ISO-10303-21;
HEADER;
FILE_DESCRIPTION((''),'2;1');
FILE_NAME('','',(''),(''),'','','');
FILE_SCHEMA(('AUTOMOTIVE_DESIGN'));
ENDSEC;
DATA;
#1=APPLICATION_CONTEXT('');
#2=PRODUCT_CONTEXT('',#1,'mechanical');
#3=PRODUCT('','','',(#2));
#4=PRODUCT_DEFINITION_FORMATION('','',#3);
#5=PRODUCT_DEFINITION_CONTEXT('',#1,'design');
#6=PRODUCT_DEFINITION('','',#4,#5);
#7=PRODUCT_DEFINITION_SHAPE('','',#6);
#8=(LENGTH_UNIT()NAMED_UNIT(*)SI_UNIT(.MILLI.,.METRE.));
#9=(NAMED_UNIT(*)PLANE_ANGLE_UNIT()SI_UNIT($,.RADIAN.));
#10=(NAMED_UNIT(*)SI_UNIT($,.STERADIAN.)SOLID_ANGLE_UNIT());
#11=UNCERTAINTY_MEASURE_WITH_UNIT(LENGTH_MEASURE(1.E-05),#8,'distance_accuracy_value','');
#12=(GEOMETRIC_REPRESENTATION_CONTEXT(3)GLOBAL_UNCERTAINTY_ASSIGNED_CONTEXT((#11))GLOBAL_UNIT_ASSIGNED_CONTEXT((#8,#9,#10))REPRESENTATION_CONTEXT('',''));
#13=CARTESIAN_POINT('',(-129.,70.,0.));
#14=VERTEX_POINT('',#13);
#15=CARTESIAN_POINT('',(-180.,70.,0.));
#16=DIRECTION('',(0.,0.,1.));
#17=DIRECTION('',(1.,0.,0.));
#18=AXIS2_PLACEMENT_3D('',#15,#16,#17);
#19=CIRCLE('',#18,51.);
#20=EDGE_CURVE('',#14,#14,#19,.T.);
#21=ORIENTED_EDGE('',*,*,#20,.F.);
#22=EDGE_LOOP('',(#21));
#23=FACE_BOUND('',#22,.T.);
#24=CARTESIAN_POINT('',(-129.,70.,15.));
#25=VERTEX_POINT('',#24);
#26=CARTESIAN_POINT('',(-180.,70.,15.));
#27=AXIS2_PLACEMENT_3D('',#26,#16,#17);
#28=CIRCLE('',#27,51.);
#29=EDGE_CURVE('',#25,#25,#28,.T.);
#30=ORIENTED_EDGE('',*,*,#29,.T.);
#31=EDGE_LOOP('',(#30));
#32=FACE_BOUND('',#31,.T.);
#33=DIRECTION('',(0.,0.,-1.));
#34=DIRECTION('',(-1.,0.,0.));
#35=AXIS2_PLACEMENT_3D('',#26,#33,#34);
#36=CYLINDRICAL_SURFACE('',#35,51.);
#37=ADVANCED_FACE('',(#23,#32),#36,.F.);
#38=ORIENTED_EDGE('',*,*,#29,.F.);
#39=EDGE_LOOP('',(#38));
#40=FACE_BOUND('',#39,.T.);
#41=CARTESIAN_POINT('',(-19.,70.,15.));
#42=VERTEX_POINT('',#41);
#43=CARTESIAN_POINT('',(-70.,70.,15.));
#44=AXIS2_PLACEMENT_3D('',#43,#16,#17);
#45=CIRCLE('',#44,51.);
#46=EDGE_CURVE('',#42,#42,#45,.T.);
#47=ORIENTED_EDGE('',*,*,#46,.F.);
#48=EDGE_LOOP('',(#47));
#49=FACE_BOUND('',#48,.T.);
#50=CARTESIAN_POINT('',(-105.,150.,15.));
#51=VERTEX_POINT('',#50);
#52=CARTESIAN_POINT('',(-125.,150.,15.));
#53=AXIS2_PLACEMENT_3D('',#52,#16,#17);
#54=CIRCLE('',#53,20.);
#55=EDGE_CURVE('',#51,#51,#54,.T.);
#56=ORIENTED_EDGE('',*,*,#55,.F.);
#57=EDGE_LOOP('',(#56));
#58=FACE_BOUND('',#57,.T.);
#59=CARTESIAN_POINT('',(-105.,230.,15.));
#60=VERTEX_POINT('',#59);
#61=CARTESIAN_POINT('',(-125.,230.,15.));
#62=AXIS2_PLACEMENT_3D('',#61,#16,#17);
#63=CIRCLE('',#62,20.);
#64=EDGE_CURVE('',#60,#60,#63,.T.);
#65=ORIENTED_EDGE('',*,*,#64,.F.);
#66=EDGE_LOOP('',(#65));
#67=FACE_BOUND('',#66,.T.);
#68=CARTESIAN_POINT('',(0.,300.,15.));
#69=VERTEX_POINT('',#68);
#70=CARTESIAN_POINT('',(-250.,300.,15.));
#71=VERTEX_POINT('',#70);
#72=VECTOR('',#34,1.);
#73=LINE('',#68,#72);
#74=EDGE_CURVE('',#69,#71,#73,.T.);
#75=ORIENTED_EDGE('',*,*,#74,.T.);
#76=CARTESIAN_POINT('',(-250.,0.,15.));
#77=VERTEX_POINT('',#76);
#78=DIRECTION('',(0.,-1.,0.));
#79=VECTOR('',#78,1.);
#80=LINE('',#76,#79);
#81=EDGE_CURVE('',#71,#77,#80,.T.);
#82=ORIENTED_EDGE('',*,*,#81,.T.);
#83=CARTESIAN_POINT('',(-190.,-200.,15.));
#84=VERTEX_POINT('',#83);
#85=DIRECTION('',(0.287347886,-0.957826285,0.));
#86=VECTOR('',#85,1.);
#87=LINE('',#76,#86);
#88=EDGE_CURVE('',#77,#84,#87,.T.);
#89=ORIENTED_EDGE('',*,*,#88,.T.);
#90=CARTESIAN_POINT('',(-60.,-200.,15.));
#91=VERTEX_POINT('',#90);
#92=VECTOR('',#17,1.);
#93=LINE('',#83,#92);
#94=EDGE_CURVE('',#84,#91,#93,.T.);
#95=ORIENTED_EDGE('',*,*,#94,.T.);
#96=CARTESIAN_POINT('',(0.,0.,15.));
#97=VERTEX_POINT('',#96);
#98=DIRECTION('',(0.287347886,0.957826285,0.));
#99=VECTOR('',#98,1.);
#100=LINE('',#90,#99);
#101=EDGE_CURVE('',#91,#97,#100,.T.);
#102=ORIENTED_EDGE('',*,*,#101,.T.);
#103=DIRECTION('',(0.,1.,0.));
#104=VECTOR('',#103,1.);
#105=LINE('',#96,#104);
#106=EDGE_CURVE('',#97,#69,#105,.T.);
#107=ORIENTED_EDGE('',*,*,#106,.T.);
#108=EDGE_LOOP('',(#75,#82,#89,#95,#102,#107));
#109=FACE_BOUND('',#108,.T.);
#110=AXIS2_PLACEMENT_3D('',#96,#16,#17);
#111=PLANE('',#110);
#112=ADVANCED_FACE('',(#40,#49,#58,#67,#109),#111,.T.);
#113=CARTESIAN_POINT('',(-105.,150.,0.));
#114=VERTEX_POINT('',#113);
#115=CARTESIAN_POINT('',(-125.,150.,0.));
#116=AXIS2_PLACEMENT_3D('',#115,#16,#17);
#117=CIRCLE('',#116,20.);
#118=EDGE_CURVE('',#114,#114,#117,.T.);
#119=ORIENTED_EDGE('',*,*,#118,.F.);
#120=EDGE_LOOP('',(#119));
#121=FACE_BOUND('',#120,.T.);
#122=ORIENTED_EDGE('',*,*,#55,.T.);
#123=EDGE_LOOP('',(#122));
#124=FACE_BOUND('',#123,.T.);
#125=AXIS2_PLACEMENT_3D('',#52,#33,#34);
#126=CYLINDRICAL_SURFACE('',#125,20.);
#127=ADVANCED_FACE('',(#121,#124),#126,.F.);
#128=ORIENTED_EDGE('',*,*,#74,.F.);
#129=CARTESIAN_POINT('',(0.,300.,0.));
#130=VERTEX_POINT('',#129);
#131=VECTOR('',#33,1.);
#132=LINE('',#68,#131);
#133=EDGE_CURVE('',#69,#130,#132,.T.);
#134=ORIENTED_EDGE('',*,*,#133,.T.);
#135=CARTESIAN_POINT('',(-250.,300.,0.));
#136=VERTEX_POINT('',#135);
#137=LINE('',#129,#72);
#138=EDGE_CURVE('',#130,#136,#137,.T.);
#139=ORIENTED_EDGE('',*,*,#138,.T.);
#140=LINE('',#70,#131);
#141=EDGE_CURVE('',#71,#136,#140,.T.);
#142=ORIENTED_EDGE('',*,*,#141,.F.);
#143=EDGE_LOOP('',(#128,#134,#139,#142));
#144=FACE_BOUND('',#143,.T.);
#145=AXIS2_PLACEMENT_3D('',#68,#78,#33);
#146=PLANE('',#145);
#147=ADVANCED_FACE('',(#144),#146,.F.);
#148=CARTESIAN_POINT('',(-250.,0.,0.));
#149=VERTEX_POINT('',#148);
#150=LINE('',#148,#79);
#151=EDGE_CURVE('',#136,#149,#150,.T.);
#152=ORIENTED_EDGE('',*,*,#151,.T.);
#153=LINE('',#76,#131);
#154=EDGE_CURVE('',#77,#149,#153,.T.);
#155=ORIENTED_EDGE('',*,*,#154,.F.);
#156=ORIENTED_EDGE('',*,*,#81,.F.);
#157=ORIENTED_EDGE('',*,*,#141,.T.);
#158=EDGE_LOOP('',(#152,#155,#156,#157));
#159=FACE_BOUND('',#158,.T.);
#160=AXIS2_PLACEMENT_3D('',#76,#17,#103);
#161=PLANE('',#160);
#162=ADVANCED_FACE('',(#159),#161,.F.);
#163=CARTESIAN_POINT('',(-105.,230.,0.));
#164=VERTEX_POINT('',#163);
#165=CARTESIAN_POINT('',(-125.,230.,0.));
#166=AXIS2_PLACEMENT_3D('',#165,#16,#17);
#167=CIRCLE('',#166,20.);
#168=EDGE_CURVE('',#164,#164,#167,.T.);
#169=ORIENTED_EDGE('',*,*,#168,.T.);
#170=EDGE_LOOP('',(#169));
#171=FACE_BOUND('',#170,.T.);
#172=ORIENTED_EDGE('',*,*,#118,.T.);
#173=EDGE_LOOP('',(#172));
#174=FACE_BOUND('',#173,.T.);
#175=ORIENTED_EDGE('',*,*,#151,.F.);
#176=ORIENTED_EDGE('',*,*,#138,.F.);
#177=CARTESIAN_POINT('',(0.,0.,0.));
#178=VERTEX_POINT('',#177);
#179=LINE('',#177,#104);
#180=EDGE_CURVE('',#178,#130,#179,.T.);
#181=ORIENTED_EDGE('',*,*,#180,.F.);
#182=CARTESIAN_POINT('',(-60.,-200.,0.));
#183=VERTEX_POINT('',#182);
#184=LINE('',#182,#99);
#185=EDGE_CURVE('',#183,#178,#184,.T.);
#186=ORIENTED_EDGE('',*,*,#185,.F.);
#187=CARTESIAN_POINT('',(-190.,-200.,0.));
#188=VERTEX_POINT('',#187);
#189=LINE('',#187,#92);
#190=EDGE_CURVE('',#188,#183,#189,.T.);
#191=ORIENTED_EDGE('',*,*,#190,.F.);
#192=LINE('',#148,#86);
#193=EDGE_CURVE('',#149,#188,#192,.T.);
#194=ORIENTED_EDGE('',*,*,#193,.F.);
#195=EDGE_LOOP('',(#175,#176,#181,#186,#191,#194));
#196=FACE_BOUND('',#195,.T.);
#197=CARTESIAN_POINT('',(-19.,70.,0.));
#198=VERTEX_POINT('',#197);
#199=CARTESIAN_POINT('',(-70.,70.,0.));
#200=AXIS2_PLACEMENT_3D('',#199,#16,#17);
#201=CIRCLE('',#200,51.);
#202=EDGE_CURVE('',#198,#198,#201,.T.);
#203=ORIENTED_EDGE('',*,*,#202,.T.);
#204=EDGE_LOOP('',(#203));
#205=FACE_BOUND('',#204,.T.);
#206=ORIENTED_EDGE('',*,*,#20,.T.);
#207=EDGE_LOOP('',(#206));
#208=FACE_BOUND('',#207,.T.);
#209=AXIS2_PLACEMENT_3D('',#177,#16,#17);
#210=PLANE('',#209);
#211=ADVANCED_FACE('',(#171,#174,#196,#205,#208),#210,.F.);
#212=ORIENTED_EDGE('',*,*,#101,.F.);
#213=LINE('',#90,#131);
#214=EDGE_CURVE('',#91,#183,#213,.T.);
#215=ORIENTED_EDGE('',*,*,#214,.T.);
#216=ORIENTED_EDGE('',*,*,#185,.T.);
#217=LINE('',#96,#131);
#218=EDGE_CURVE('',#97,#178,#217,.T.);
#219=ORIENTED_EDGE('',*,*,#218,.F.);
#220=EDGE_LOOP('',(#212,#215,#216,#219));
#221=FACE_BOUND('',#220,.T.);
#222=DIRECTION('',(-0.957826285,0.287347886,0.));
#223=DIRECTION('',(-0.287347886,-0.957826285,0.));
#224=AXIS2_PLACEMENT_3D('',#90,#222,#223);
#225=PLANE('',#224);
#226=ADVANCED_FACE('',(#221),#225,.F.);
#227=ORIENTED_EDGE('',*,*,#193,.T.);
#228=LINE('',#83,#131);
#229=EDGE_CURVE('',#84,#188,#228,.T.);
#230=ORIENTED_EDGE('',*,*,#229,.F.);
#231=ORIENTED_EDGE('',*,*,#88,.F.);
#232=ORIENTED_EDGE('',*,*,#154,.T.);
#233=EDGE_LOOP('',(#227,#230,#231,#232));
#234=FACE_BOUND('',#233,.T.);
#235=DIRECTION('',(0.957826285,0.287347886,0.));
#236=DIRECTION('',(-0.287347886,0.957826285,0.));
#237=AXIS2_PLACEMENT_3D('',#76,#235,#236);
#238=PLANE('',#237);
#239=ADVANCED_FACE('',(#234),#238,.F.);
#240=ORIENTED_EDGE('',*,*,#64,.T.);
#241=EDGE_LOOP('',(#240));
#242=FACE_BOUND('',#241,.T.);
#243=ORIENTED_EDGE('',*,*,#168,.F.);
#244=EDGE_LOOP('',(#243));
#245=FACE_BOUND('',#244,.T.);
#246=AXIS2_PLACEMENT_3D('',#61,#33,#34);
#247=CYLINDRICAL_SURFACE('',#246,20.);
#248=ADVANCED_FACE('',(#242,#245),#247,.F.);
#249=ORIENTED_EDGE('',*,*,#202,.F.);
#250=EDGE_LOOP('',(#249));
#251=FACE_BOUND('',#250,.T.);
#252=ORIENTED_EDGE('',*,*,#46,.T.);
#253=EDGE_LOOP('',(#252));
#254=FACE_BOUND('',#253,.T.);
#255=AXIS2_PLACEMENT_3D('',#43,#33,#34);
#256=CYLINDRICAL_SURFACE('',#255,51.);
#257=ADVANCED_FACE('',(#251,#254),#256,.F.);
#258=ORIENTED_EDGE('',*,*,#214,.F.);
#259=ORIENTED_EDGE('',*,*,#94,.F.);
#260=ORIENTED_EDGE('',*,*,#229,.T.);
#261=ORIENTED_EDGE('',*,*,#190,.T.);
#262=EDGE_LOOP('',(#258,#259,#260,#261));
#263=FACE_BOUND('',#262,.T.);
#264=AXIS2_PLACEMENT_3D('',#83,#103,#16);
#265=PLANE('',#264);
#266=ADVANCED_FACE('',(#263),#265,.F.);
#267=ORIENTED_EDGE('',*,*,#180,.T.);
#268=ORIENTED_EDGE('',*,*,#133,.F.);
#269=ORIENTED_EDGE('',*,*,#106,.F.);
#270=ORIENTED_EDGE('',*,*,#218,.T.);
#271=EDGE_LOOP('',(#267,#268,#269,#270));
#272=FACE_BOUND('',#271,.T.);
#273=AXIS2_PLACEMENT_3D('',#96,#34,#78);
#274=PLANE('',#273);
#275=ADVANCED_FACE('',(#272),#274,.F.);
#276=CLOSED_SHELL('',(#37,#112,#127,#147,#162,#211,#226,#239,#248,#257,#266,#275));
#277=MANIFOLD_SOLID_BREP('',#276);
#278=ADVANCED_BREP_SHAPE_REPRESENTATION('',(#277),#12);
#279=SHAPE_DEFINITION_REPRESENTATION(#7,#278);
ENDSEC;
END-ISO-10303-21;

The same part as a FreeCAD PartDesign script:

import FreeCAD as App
import Part
import Sketcher
from FreeCAD import Vector
Q = App.Units.Quantity

doc = App.newDocument("Part")
params = doc.addObject("Spreadsheet::Sheet", "Params")
for row, (alias, value) in enumerate([
    ("sketch1_diameter", "102 mm"),
    ("sketch1_diameter2", "40 mm"),
    ("sketch1_width", "250 mm"),
    ("sketch1_height", "300 mm"),
    ("pad1_length", "15 mm"),
    ("sketch2_width", "250 mm"),
    ("sketch2_width2", "130 mm"),
    ("pad2_length", "15 mm"),
], start=1):
    params.set(f"A{row}", alias)
    params.set(f"B{row}", "=" + value)
    params.setAlias(f"B{row}", alias)

body = doc.addObject("PartDesign::Body", "Body")

sketch1 = body.newObject("Sketcher::SketchObject", "Sketch")
sketch1.AttachmentSupport = (doc.getObject("XY_Plane"), [""])
sketch1.MapMode = "FlatFace"
sketch1.addGeometry(Part.LineSegment(Vector(-250, 300, 0), Vector(-250, 0, 0)), False)
sketch1.addGeometry(Part.LineSegment(Vector(-250, 0, 0), Vector(0, 0, 0)), False)
sketch1.addGeometry(Part.LineSegment(Vector(0, 0, 0), Vector(0, 300, 0)), False)
sketch1.addGeometry(Part.LineSegment(Vector(0, 300, 0), Vector(-250, 300, 0)), False)
sketch1.addGeometry(Part.Circle(Vector(-180, 70, 0), Vector(0, 0, 1), 51), False)
sketch1.addGeometry(Part.Circle(Vector(-70, 70, 0), Vector(0, 0, 1), 51), False)
sketch1.addGeometry(Part.Circle(Vector(-125, 150, 0), Vector(0, 0, 1), 20), False)
sketch1.addGeometry(Part.Circle(Vector(-125, 230, 0), Vector(0, 0, 1), 20), False)
sketch1.addConstraint(Sketcher.Constraint("Coincident", 0, 2, 1, 1))
sketch1.addConstraint(Sketcher.Constraint("Coincident", 1, 2, 2, 1))
sketch1.addConstraint(Sketcher.Constraint("Coincident", 2, 2, 3, 1))
sketch1.addConstraint(Sketcher.Constraint("Coincident", 3, 2, 0, 1))
sketch1.addConstraint(Sketcher.Constraint("Vertical", 0))
sketch1.addConstraint(Sketcher.Constraint("Horizontal", 1))
sketch1.addConstraint(Sketcher.Constraint("Vertical", 2))
sketch1.addConstraint(Sketcher.Constraint("Horizontal", 3))
sketch1.addConstraint(Sketcher.Constraint("Coincident", 1, 2, -1, 1))
sketch1.addConstraint(Sketcher.Constraint("Equal", 4, 5))
sketch1.addConstraint(Sketcher.Constraint("Equal", 6, 7))
sketch1.addConstraint(Sketcher.Constraint("Horizontal", 4, 3, 5, 3))
sketch1.addConstraint(Sketcher.Constraint("Vertical", 6, 3, 7, 3))
sketch1.addConstraint(Sketcher.Constraint("Diameter", 4, Q("102 mm")))
sketch1.addConstraint(Sketcher.Constraint("Diameter", 6, Q("40 mm")))
sketch1.addConstraint(Sketcher.Constraint("DistanceX", 1, 1, 1, 2, Q("250 mm")))
sketch1.addConstraint(Sketcher.Constraint("DistanceY", 0, 2, 0, 1, Q("300 mm")))
sketch1.addConstraint(Sketcher.Constraint("DistanceX", 4, 3, -1, 1, Q("180 mm")))
sketch1.addConstraint(Sketcher.Constraint("DistanceY", -1, 1, 4, 3, Q("70 mm")))
sketch1.addConstraint(Sketcher.Constraint("DistanceX", 5, 3, -1, 1, Q("70 mm")))
sketch1.addConstraint(Sketcher.Constraint("DistanceX", 6, 3, -1, 1, Q("125 mm")))
sketch1.addConstraint(Sketcher.Constraint("DistanceY", -1, 1, 6, 3, Q("150 mm")))
sketch1.addConstraint(Sketcher.Constraint("DistanceY", -1, 1, 7, 3, Q("230 mm")))
sketch1.setExpression("Constraints[13]", "Params.sketch1_diameter")
sketch1.setExpression("Constraints[14]", "Params.sketch1_diameter2")
sketch1.setExpression("Constraints[15]", "Params.sketch1_width")
sketch1.setExpression("Constraints[16]", "Params.sketch1_height")
pad1 = body.newObject("PartDesign::Pad", "Pad")
pad1.Profile = sketch1
pad1.setExpression("Length", "Params.pad1_length")

sketch2 = body.newObject("Sketcher::SketchObject", "Sketch001")
sketch2.AttachmentSupport = (doc.getObject("XY_Plane"), [""])
sketch2.MapMode = "FlatFace"
sketch2.addGeometry(Part.LineSegment(Vector(0, 0, 0), Vector(-250, 0, 0)), False)
sketch2.addGeometry(Part.LineSegment(Vector(-250, 0, 0), Vector(-190, -200, 0)), False)
sketch2.addGeometry(Part.LineSegment(Vector(-190, -200, 0), Vector(-60, -200, 0)), False)
sketch2.addGeometry(Part.LineSegment(Vector(-60, -200, 0), Vector(0, 0, 0)), False)
sketch2.addConstraint(Sketcher.Constraint("Coincident", 0, 2, 1, 1))
sketch2.addConstraint(Sketcher.Constraint("Coincident", 1, 2, 2, 1))
sketch2.addConstraint(Sketcher.Constraint("Coincident", 2, 2, 3, 1))
sketch2.addConstraint(Sketcher.Constraint("Coincident", 3, 2, 0, 1))
sketch2.addConstraint(Sketcher.Constraint("Horizontal", 0))
sketch2.addConstraint(Sketcher.Constraint("Horizontal", 2))
sketch2.addConstraint(Sketcher.Constraint("Coincident", 3, 2, -1, 1))
sketch2.addConstraint(Sketcher.Constraint("Equal", 1, 3))
sketch2.addConstraint(Sketcher.Constraint("DistanceX", 0, 2, 0, 1, Q("250 mm")))
sketch2.addConstraint(Sketcher.Constraint("DistanceX", 2, 1, 2, 2, Q("130 mm")))
sketch2.addConstraint(Sketcher.Constraint("DistanceY", 1, 2, -1, 1, Q("200 mm")))
sketch2.setExpression("Constraints[8]", "Params.sketch2_width")
sketch2.setExpression("Constraints[9]", "Params.sketch2_width2")
pad2 = body.newObject("PartDesign::Pad", "Pad001")
pad2.Profile = sketch2
pad2.setExpression("Length", "Params.pad2_length")

doc.recompute()
